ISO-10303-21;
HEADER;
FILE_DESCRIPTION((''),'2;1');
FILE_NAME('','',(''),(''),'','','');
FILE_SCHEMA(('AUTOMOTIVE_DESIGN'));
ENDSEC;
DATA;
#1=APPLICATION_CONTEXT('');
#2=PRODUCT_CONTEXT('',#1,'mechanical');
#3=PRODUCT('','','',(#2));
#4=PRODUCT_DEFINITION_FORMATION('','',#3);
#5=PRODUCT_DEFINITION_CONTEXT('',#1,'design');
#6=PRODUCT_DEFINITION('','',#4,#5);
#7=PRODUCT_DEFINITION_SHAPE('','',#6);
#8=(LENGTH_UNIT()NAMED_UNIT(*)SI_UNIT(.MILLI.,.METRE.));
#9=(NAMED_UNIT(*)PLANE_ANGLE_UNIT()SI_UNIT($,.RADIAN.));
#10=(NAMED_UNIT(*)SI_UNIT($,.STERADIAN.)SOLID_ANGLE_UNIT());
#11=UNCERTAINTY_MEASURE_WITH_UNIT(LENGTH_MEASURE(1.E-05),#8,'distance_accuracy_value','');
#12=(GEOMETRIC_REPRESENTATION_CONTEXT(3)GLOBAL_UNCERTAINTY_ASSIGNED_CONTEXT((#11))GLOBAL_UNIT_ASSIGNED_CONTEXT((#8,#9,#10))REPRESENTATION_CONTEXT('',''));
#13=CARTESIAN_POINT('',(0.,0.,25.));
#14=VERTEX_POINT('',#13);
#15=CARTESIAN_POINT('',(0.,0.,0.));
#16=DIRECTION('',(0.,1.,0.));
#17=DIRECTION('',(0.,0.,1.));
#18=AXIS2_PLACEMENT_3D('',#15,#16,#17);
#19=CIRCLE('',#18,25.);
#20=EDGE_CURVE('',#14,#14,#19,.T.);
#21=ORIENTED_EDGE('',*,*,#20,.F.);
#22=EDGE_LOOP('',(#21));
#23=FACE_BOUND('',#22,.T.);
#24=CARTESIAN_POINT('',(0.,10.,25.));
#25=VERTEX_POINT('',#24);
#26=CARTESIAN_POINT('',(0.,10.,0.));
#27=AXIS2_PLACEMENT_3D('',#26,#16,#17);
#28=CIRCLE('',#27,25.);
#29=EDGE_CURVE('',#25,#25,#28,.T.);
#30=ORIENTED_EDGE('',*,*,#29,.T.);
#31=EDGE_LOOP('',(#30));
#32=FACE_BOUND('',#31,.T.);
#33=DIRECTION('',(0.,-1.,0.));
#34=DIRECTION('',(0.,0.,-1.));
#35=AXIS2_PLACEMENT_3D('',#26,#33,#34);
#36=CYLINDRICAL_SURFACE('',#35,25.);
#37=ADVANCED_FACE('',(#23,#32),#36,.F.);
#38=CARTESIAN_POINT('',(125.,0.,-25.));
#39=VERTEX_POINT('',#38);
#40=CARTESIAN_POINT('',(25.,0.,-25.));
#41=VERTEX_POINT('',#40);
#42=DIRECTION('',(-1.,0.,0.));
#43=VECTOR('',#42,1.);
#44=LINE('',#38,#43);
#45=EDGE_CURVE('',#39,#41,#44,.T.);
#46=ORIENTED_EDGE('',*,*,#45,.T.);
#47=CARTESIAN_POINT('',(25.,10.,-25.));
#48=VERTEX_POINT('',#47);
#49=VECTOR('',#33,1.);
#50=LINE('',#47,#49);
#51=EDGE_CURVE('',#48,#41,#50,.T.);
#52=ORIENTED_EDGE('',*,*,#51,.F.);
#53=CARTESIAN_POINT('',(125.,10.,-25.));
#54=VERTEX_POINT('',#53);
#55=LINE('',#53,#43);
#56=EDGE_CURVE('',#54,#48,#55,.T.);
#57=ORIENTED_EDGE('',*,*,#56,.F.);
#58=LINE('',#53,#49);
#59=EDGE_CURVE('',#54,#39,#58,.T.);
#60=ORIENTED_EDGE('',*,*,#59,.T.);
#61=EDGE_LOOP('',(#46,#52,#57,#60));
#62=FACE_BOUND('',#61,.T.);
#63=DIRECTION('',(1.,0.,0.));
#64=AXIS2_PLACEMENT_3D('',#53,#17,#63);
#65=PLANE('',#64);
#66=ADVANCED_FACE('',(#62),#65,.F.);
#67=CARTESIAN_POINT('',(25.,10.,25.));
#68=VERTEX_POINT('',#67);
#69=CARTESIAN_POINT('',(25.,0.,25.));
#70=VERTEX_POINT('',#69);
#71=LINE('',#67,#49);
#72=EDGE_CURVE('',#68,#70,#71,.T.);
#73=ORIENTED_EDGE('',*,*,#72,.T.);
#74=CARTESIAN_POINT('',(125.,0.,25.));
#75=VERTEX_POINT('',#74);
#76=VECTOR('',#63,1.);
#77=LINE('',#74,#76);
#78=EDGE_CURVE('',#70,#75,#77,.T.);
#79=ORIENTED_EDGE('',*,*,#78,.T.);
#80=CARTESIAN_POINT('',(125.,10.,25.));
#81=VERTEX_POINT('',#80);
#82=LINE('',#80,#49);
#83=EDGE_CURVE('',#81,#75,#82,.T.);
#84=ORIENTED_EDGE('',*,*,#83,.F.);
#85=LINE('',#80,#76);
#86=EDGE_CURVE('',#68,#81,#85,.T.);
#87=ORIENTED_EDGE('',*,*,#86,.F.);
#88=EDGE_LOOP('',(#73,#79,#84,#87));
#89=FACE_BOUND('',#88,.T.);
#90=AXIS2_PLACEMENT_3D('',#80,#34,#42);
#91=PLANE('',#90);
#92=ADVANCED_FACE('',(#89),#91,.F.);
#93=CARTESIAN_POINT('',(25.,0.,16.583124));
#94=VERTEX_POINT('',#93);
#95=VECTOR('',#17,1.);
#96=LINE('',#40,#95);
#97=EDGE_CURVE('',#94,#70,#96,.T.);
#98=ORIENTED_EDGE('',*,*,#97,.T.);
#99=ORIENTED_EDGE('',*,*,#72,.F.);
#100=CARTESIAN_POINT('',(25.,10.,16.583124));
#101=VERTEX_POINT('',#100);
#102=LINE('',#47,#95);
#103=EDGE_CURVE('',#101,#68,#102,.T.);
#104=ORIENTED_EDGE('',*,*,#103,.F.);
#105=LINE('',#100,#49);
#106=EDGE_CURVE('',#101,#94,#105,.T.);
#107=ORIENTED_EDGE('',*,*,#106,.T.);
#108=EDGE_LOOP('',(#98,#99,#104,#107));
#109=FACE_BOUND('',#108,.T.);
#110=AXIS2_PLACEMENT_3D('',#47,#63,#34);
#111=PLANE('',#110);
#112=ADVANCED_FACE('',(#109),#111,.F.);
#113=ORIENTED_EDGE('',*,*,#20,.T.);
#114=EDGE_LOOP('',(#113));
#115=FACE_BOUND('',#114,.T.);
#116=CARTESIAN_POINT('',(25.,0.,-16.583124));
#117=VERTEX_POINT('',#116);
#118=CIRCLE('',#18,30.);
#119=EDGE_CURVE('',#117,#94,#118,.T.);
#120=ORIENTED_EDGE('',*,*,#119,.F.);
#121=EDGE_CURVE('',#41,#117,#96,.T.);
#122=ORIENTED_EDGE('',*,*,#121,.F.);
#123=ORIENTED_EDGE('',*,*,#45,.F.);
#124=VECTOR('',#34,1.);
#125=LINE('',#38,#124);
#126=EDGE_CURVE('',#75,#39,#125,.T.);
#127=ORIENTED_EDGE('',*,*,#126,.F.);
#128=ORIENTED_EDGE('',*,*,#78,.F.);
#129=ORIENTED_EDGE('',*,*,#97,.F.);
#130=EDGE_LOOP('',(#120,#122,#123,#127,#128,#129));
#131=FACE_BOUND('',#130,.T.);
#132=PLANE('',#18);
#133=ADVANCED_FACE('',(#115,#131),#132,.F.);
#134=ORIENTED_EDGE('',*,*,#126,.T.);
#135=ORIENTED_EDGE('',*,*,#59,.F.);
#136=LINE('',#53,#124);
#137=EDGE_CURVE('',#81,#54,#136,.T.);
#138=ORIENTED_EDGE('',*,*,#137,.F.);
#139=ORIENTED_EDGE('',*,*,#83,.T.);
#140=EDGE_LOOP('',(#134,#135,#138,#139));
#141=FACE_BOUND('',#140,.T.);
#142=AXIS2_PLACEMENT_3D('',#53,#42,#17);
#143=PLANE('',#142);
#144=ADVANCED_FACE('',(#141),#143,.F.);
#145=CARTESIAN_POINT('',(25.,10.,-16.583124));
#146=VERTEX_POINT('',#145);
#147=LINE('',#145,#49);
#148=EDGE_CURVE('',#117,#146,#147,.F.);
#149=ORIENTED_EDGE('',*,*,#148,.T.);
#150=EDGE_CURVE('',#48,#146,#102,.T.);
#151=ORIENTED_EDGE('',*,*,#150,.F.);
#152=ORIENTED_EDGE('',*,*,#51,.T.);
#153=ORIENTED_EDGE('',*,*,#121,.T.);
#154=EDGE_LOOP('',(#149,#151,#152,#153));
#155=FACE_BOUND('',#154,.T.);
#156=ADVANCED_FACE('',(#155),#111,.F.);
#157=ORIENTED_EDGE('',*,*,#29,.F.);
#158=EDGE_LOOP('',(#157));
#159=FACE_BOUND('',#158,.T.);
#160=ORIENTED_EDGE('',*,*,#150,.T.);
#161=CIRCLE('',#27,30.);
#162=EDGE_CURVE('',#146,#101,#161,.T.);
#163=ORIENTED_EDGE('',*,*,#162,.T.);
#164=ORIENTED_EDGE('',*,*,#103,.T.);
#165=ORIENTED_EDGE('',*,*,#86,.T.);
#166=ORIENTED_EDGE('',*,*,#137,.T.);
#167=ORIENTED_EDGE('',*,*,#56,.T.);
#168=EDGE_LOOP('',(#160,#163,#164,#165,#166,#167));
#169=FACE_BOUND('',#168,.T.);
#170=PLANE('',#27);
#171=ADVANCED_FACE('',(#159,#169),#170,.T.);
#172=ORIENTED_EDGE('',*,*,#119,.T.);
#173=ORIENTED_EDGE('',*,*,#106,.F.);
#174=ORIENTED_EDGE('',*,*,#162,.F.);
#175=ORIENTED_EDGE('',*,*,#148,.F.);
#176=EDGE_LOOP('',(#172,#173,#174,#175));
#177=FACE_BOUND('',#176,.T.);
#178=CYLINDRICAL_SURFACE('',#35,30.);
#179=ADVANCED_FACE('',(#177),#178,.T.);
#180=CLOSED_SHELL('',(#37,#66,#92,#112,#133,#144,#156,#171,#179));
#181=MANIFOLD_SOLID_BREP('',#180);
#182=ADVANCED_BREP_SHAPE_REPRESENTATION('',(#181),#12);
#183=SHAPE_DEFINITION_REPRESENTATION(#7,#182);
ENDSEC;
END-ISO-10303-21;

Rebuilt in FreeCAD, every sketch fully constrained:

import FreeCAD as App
import Part
import Sketcher

doc = App.newDocument("Part")
body = doc.addObject("PartDesign::Body", "Body")

# Sketch on XZ plane
sketch1 = body.newObject("Sketcher::SketchObject", "Sketch")
sketch1.AttachmentSupport = (doc.getObject("XZ_Plane"), [""])
sketch1.MapMode = "FlatFace"
sketch1.addGeometry(Part.Circle(App.Vector(0, 0, 0), App.Vector(0, 0, 1), 30), False)
sketch1.addGeometry(Part.Circle(App.Vector(0, 0, 0), App.Vector(0, 0, 1), 25), False)
sketch1.addConstraint(Sketcher.Constraint("Coincident", 0, 3, -1, 1))
sketch1.addConstraint(Sketcher.Constraint("Coincident", 1, 3, -1, 1))
sketch1.addConstraint(Sketcher.Constraint("Diameter", 0, 60.0))
sketch1.addConstraint(Sketcher.Constraint("Diameter", 1, 50.0))
pad1 = body.newObject("PartDesign::Pad", "Pad")
pad1.Profile = sketch1
pad1.Length = 10
pad1.Reversed = True

# Sketch on XZ plane
sketch2 = body.newObject("Sketcher::SketchObject", "Sketch001")
sketch2.AttachmentSupport = (doc.getObject("XZ_Plane"), [""])
sketch2.MapMode = "FlatFace"
sketch2.addGeometry(Part.LineSegment(App.Vector(25, -25, 0), App.Vector(25, 25, 0)), False)
sketch2.addGeometry(Part.LineSegment(App.Vector(25, 25, 0), App.Vector(125, 25, 0)), False)
sketch2.addGeometry(Part.LineSegment(App.Vector(125, 25, 0), App.Vector(125, -25, 0)), False)
sketch2.addGeometry(Part.LineSegment(App.Vector(125, -25, 0), App.Vector(25, -25, 0)), False)
sketch2.addConstraint(Sketcher.Constraint("Coincident", 0, 2, 1, 1))
sketch2.addConstraint(Sketcher.Constraint("Coincident", 1, 2, 2, 1))
sketch2.addConstraint(Sketcher.Constraint("Coincident", 2, 2, 3, 1))
sketch2.addConstraint(Sketcher.Constraint("Coincident", 3, 2, 0, 1))
sketch2.addConstraint(Sketcher.Constraint("Vertical", 0))
sketch2.addConstraint(Sketcher.Constraint("Horizontal", 1))
sketch2.addConstraint(Sketcher.Constraint("Vertical", 2))
sketch2.addConstraint(Sketcher.Constraint("Horizontal", 3))
sketch2.addConstraint(Sketcher.Constraint("DistanceX", 1, 1, 1, 2, 100.0))
sketch2.addConstraint(Sketcher.Constraint("DistanceY", 0, 1, 0, 2, 50.0))
sketch2.addConstraint(Sketcher.Constraint("DistanceX", -1, 1, 0, 2, 25.0))
sketch2.addConstraint(Sketcher.Constraint("DistanceY", -1, 1, 0, 2, 25.0))
pad2 = body.newObject("PartDesign::Pad", "Pad001")
pad2.Profile = sketch2
pad2.Length = 10
pad2.Reversed = True

doc.recompute()
